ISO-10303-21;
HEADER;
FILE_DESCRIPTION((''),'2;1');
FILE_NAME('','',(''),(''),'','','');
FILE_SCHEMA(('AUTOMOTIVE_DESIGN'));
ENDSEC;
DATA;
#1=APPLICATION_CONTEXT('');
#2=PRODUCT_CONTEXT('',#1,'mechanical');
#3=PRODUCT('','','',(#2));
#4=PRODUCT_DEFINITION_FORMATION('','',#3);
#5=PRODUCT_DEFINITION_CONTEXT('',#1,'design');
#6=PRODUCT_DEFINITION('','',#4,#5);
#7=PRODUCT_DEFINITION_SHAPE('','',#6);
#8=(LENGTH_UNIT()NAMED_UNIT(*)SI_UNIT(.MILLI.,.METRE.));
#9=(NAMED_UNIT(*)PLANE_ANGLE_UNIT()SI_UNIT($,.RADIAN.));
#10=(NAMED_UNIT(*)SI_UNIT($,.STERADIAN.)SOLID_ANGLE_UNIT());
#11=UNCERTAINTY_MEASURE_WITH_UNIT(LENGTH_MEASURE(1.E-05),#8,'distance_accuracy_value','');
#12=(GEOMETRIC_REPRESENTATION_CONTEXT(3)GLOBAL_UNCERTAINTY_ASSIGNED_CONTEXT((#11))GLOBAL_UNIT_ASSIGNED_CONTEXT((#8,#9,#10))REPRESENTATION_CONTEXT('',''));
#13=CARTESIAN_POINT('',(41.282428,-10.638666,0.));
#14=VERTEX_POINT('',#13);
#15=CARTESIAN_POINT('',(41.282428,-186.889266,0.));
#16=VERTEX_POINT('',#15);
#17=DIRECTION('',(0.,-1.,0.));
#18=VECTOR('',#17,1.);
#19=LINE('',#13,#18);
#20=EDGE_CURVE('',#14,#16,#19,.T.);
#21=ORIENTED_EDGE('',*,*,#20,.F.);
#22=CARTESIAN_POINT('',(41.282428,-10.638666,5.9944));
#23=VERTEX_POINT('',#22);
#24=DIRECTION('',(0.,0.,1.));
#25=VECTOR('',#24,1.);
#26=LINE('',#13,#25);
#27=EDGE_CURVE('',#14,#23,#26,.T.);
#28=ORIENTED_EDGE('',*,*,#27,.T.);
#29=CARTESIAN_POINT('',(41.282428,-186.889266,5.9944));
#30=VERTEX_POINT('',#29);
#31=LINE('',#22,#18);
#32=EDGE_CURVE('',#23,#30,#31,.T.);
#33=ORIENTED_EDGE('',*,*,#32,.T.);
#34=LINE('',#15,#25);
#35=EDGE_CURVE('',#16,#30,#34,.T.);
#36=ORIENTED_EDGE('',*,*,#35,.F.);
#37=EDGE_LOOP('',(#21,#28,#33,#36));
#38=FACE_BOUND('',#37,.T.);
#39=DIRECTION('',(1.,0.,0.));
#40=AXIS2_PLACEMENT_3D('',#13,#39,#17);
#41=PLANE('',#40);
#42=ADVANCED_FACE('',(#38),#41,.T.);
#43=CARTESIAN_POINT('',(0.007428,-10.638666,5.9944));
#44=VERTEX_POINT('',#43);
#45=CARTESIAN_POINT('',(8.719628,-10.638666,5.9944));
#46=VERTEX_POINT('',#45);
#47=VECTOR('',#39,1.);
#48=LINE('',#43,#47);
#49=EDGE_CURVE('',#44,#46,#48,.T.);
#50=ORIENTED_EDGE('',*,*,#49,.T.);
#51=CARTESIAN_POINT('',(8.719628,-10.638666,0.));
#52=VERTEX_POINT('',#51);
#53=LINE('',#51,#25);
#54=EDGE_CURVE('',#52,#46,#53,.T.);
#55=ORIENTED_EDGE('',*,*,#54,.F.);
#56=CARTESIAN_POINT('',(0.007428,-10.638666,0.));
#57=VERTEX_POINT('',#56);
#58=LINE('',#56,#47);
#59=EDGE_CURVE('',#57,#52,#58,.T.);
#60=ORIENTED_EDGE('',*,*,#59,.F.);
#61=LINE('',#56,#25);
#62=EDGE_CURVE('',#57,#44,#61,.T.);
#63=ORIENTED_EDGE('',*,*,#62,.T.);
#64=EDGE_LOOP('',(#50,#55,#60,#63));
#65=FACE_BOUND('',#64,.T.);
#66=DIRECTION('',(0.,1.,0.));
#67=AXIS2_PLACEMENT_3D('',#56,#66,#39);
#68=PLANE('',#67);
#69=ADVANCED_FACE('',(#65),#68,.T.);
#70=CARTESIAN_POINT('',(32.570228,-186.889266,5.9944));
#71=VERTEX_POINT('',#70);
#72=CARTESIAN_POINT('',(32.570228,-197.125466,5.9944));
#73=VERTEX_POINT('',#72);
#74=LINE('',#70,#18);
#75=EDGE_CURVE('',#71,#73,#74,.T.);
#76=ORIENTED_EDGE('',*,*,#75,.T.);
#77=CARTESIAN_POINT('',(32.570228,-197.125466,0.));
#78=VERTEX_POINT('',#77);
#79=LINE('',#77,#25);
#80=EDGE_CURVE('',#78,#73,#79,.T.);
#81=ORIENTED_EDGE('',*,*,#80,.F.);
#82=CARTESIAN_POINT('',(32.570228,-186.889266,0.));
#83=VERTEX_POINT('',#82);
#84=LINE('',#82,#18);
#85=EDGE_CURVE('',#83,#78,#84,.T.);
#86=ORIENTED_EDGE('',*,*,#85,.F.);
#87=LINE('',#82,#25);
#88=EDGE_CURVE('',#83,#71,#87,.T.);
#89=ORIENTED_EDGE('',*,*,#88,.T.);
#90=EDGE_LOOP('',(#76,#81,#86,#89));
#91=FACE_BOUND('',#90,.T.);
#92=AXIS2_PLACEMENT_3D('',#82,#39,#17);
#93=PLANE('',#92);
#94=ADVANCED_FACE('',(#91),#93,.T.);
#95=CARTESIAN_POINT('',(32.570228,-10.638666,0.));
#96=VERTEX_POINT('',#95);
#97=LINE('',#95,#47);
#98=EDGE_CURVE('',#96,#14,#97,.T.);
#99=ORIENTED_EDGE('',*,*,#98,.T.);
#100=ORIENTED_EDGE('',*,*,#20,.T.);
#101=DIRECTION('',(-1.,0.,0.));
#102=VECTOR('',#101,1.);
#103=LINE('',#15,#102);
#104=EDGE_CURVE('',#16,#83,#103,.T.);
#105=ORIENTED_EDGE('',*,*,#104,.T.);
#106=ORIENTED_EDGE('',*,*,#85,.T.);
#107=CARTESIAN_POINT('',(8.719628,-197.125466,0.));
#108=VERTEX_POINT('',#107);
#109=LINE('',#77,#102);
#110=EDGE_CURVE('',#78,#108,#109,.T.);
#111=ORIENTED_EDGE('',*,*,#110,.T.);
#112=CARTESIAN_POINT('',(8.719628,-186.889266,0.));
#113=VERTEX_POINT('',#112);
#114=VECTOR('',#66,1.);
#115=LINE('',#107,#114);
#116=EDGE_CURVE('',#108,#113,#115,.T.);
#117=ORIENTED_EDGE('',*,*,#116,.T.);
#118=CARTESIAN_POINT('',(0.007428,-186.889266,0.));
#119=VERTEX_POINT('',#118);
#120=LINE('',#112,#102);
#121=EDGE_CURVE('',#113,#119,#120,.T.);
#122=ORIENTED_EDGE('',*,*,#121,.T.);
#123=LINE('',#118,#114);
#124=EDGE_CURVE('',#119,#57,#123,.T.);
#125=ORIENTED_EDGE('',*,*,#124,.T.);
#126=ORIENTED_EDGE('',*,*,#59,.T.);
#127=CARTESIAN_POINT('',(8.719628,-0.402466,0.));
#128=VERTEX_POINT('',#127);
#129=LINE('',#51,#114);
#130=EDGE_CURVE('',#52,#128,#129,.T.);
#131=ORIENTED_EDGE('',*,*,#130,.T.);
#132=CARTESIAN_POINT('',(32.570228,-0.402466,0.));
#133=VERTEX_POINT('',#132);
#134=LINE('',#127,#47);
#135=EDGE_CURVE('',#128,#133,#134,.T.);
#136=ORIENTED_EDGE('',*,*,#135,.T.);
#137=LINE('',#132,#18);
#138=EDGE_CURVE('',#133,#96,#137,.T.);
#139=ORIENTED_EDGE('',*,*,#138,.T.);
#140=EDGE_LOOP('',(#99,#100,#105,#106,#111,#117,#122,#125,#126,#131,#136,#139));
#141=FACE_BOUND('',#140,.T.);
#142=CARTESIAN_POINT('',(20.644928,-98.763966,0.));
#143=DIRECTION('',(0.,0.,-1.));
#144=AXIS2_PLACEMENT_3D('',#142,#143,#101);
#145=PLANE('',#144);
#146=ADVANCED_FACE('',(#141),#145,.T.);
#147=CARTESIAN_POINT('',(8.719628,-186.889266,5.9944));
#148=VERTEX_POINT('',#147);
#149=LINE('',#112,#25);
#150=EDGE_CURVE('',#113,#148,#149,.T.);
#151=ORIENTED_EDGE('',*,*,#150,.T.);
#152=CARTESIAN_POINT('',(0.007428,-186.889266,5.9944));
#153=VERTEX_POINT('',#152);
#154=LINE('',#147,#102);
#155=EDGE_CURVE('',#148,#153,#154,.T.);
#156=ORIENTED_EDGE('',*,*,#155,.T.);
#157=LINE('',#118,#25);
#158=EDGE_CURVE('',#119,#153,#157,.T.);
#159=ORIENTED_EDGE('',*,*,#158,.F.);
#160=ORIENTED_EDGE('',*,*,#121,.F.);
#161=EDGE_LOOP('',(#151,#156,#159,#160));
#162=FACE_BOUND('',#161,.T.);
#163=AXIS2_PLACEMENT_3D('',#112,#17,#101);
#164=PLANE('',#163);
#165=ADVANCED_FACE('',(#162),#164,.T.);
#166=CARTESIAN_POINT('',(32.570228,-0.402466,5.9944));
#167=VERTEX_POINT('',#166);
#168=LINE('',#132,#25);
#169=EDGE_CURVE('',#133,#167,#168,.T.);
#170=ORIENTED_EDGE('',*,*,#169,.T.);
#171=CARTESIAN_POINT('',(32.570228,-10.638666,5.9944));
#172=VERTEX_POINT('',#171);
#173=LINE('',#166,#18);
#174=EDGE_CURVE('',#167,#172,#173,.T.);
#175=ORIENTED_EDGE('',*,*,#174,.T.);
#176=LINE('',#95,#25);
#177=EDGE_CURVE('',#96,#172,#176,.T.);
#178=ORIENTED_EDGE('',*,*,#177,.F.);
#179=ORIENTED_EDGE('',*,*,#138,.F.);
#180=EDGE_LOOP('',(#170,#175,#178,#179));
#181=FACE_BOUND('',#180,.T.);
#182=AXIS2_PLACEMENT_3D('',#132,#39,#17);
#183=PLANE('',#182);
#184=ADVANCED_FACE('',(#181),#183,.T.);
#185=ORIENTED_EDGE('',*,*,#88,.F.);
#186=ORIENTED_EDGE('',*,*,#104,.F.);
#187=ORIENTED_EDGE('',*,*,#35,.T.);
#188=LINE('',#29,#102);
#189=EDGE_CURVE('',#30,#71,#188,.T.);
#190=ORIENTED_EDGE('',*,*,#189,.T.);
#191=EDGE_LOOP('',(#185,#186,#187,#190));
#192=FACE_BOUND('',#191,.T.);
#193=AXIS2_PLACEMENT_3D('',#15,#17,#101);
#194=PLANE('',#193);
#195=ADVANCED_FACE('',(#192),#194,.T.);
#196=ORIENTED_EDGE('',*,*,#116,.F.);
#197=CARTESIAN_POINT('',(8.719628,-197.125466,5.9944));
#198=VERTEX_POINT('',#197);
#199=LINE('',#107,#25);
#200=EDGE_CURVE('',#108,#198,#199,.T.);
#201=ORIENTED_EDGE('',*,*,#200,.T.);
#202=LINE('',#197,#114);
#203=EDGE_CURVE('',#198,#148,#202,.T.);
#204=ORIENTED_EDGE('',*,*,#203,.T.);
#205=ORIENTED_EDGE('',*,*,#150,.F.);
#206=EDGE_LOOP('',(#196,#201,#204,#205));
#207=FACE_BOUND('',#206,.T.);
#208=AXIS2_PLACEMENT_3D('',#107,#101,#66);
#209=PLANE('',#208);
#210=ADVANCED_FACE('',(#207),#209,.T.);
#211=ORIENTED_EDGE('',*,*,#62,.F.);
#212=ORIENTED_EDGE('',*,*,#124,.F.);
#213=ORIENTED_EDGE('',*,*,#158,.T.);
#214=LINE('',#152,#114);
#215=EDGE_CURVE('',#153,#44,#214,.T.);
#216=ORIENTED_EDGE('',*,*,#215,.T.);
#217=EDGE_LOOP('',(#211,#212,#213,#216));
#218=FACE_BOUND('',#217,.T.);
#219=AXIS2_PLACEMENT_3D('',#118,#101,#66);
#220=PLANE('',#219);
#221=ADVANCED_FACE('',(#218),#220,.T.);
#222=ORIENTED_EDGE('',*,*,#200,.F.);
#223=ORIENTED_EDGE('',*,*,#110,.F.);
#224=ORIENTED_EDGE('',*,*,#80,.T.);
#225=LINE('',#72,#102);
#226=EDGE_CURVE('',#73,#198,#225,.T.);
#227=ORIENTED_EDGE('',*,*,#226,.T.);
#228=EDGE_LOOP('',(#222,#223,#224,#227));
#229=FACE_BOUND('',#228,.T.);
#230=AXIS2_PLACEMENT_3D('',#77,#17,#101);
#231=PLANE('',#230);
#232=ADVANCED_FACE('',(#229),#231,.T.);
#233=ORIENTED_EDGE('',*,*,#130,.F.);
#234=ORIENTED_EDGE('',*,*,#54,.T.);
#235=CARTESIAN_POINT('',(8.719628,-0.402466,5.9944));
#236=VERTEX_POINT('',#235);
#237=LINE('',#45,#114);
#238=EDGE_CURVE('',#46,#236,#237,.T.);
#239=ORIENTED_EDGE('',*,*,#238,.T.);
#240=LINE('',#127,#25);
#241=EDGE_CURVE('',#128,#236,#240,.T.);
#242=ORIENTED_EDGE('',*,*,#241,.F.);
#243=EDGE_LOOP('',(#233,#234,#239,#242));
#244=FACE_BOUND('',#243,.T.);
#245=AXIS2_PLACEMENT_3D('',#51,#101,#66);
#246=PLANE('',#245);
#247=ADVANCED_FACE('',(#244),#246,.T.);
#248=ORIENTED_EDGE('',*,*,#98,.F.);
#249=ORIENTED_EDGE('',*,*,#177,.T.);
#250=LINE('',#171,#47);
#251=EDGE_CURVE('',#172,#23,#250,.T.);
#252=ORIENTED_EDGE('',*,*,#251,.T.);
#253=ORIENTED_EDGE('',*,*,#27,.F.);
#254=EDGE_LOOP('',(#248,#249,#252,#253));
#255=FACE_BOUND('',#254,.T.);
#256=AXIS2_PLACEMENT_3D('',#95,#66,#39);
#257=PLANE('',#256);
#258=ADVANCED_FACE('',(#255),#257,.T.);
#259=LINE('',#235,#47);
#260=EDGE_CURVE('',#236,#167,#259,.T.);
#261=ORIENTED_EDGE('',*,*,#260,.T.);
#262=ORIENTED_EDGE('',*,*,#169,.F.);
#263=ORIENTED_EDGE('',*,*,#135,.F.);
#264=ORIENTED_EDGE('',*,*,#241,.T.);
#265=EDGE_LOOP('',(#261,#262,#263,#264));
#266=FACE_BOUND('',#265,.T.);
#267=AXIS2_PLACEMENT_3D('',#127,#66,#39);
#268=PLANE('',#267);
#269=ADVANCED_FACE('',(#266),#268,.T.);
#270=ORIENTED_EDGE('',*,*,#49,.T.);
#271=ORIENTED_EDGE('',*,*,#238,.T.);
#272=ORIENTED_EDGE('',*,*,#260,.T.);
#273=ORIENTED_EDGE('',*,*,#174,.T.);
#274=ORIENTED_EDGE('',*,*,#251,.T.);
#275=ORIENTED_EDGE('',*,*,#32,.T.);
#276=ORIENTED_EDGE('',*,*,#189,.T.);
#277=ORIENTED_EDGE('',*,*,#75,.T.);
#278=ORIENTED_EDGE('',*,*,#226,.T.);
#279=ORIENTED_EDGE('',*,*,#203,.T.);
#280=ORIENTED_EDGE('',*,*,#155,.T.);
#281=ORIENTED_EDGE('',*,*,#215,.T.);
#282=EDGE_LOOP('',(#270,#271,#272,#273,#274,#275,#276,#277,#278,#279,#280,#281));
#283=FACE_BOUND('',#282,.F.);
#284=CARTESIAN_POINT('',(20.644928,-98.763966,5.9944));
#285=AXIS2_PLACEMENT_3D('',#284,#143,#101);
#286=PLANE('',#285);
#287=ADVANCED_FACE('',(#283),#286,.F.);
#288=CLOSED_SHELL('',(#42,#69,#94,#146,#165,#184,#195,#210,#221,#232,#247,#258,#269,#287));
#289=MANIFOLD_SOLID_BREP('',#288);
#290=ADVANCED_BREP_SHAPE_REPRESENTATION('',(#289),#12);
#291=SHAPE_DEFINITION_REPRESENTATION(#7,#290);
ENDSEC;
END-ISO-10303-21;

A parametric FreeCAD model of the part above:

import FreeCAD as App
import Part
import Sketcher
from FreeCAD import Vector
Q = App.Units.Quantity

doc = App.newDocument("Part")
body = doc.addObject("PartDesign::Body", "Body")

# Sketch on XY plane
sketch1 = body.newObject("Sketcher::SketchObject", "Sketch")
sketch1.AttachmentSupport = (doc.getObject("XY_Plane"), [""])
sketch1.MapMode = "FlatFace"
sketch1.addGeometry([
    Part.LineSegment(Vector(8.719628, -10.638666, 0), Vector(0.007428, -10.638666, 0)),  # 0
    Part.LineSegment(Vector(0.007428, -10.638666, 0), Vector(0.007428, -186.889266, 0)),  # 1
    Part.LineSegment(Vector(0.007428, -186.889266, 0), Vector(8.719628, -186.889266, 0)),  # 2
    Part.LineSegment(Vector(8.719628, -186.889266, 0), Vector(8.719628, -197.125466, 0)),  # 3
    Part.LineSegment(Vector(8.719628, -197.125466, 0), Vector(32.570228, -197.125466, 0)),  # 4
    Part.LineSegment(Vector(32.570228, -197.125466, 0), Vector(32.570228, -186.889266, 0)),  # 5
    Part.LineSegment(Vector(32.570228, -186.889266, 0), Vector(41.282428, -186.889266, 0)),  # 6
    Part.LineSegment(Vector(41.282428, -186.889266, 0), Vector(41.282428, -10.638666, 0)),  # 7
    Part.LineSegment(Vector(41.282428, -10.638666, 0), Vector(32.570228, -10.638666, 0)),  # 8
    Part.LineSegment(Vector(32.570228, -10.638666, 0), Vector(32.570228, -0.402466, 0)),  # 9
    Part.LineSegment(Vector(32.570228, -0.402466, 0), Vector(8.719628, -0.402466, 0)),  # 10
    Part.LineSegment(Vector(8.719628, -0.402466, 0), Vector(8.719628, -10.638666, 0)),  # 11
], False)
sketch1.addConstraint([
    Sketcher.Constraint("Coincident", 0, 2, 1, 1),
    Sketcher.Constraint("Coincident", 1, 2, 2, 1),
    Sketcher.Constraint("Coincident", 2, 2, 3, 1),
    Sketcher.Constraint("Coincident", 3, 2, 4, 1),
    Sketcher.Constraint("Coincident", 4, 2, 5, 1),
    Sketcher.Constraint("Coincident", 5, 2, 6, 1),
    Sketcher.Constraint("Coincident", 6, 2, 7, 1),
    Sketcher.Constraint("Coincident", 7, 2, 8, 1),
    Sketcher.Constraint("Coincident", 8, 2, 9, 1),
    Sketcher.Constraint("Coincident", 9, 2, 10, 1),
    Sketcher.Constraint("Coincident", 10, 2, 11, 1),
    Sketcher.Constraint("Coincident", 11, 2, 0, 1),
    Sketcher.Constraint("Horizontal", 0),
    Sketcher.Constraint("Vertical", 1),
    Sketcher.Constraint("Horizontal", 2),
    Sketcher.Constraint("Vertical", 3),
    Sketcher.Constraint("Horizontal", 4),
    Sketcher.Constraint("Vertical", 5),
    Sketcher.Constraint("Horizontal", 6),
    Sketcher.Constraint("Vertical", 7),
    Sketcher.Constraint("Horizontal", 8),
    Sketcher.Constraint("Vertical", 9),
    Sketcher.Constraint("Horizontal", 10),
    Sketcher.Constraint("Vertical", 11),
    Sketcher.Constraint("Horizontal", 2, 2, 5, 2),
    Sketcher.Constraint("Horizontal", 0, 2, 7, 2),
    Sketcher.Constraint("Vertical", 5, 2, 8, 2),
    Sketcher.Constraint("Vertical", 3, 2, 10, 2),
    Sketcher.Constraint("Equal", 2, 6),
    Sketcher.Constraint("Equal", 5, 9),
    Sketcher.Constraint("DistanceX", 0, 2, 0, 1, Q("0.343 in")),
    Sketcher.Constraint("DistanceX", 4, 1, 4, 2, Q("0.939 in")),
    Sketcher.Constraint("DistanceY", 1, 2, 1, 1, Q("6.939 in")),
    Sketcher.Constraint("DistanceY", 3, 2, 3, 1, Q("0.403 in")),
    Sketcher.Constraint("DistanceX", -1, 1, 6, 2, Q("41.282428 mm")),
    Sketcher.Constraint("DistanceY", 0, 2, -1, 1, Q("10.638666 mm")),
])
pad1 = body.newObject("PartDesign::Pad", "Pad")
pad1.Profile = sketch1
pad1.Length = Q("0.236 in")

doc.recompute()
